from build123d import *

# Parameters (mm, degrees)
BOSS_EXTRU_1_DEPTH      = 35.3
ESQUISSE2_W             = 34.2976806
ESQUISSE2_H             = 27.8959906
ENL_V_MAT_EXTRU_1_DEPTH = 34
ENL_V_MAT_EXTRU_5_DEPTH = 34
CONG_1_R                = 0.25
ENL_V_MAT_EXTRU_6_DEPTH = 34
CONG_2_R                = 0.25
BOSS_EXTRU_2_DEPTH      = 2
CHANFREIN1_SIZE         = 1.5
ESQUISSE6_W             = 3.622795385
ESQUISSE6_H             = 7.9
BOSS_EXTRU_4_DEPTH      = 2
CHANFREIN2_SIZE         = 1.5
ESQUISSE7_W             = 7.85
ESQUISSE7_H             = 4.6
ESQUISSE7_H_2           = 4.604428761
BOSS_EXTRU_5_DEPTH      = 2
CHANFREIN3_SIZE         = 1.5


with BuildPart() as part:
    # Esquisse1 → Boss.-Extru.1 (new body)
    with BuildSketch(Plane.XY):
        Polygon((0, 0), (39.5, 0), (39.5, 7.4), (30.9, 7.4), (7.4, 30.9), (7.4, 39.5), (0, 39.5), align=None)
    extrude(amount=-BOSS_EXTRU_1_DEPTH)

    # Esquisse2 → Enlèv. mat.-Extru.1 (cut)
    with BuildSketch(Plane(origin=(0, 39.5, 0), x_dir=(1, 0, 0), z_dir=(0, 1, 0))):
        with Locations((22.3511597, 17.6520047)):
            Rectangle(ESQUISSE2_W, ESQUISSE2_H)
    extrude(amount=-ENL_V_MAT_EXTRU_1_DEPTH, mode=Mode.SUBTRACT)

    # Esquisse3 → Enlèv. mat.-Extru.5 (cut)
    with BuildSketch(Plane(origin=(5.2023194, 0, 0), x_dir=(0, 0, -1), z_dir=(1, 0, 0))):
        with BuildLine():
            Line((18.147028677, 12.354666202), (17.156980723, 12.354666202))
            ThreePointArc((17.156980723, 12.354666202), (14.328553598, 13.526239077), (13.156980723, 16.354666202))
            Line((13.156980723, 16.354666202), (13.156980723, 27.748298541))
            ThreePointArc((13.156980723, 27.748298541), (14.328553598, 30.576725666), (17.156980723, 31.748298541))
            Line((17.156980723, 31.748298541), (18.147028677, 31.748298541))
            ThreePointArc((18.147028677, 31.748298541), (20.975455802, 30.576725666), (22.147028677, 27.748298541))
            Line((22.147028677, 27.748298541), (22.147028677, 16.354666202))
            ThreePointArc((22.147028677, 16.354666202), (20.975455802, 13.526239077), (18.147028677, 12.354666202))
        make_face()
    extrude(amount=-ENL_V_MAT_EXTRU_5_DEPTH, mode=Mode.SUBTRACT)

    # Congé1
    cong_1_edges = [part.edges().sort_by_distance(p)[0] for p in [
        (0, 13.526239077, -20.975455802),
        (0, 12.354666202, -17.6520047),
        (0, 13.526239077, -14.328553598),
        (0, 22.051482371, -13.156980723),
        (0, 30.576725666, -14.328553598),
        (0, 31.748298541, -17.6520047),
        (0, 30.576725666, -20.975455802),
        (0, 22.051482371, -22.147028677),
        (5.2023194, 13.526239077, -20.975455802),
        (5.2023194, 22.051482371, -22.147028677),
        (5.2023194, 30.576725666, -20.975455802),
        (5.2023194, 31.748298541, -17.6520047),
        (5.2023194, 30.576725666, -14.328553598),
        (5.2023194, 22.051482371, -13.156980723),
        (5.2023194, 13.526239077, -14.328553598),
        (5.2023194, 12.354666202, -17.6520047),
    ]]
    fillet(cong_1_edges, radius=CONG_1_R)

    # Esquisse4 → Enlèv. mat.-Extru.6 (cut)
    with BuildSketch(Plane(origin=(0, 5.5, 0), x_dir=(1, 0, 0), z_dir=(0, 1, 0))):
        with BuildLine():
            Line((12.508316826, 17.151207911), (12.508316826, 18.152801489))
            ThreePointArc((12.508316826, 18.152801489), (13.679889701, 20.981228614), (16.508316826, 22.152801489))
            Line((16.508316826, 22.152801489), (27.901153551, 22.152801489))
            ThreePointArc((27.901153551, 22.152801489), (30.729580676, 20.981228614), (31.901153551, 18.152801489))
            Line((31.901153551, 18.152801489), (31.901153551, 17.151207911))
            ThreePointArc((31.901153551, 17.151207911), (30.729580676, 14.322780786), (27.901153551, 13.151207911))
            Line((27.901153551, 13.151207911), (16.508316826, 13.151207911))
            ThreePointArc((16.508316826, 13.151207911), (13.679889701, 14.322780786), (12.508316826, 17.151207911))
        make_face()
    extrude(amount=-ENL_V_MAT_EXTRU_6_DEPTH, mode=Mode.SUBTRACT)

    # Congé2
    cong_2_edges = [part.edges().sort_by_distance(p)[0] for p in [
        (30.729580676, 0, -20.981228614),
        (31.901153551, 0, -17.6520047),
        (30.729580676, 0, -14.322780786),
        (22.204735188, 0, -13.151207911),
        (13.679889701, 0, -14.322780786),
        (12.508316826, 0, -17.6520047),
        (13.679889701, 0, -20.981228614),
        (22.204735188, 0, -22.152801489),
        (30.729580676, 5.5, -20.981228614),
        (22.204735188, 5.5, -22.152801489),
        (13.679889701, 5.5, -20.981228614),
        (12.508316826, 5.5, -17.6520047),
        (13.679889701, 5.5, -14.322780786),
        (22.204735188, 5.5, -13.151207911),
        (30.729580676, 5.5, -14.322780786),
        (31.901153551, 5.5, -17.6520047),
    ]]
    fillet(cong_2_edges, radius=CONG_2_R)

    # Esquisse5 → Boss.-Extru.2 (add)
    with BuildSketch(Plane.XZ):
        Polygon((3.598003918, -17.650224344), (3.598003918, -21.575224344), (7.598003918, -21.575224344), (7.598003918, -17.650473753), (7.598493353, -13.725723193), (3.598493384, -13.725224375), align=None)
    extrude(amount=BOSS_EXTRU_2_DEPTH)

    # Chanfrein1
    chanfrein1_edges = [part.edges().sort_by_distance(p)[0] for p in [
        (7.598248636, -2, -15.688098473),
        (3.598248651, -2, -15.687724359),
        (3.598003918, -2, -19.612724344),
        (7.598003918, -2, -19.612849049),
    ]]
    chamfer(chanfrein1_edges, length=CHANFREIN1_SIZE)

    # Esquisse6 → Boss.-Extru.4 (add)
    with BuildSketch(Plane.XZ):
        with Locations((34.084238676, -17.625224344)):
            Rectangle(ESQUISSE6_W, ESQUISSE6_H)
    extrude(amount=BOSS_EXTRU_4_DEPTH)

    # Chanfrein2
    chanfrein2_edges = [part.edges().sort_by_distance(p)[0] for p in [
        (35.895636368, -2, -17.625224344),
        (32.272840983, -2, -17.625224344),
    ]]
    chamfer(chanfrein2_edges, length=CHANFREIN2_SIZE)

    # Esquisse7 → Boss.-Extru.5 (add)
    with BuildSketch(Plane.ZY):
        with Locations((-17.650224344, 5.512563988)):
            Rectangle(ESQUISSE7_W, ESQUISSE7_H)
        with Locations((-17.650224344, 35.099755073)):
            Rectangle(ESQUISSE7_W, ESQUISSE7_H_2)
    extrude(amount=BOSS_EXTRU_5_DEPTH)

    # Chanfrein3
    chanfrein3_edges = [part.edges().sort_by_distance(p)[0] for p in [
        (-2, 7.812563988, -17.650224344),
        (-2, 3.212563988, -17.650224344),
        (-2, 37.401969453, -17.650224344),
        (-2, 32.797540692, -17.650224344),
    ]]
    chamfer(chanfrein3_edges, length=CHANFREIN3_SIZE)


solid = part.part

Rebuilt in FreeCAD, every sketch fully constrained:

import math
import FreeCAD as App
import Part
import Sketcher

V = App.Vector
Q = App.Units.Quantity


def edges_at(feature, points):
    """Names of the edges that pass closest to the given points."""
    edges = feature.Shape.Edges
    near = lambda p: min(range(len(edges)), key=lambda i: edges[i].distToShape(Part.Vertex(*p))[0])
    return sorted({f"Edge{near(p) + 1}" for p in points})


def add_polygon(sketch, points):
    """Adds a closed chain of lines whose ends are joined by coincident constraints."""
    first, n = sketch.GeometryCount, len(points)
    for a, b in zip(points, points[1:] + points[:1]):
        sketch.addGeometry(Part.LineSegment(App.Vector(*a, 0), App.Vector(*b, 0)), False)
    for i in range(n):
        sketch.addConstraint(Sketcher.Constraint("Coincident", first + i, 2, first + (i + 1) % n, 1))

doc = App.newDocument("Part")
params = doc.addObject("Spreadsheet::Sheet", "Params")
for row, (alias, value) in enumerate([
    ("sketch1_width", "39.5 mm"),
    ("sketch1_width2", "8.6 mm"),
    ("sketch1_width3", "7.4 mm"),
    ("pad1_length", "35.3 mm"),
    ("pocket1_length", "34 mm"),
    ("sketch3_radius", "4 mm"),
    ("pocket2_length", "34 mm"),
    ("fillet_radius", "0.25 mm"),
    ("sketch4_radius", "4 mm"),
    ("pocket3_length", "34 mm"),
    ("fillet2_radius", "0.25 mm"),
    ("sketch5_width", "4 mm"),
    ("pad2_length", "2 mm"),
    ("chamfer_size", "1.5 mm"),
    ("sketch6_height", "7.9 mm"),
    ("pad3_length", "2 mm"),
    ("chamfer2_size", "1.5 mm"),
    ("sketch7_width", "4.6 mm"),
    ("sketch7_height", "7.85 mm"),
    ("pad4_length", "2 mm"),
    ("chamfer3_size", "1.5 mm"),
], start=1):
    params.set(f"A{row}", alias)
    params.set(f"B{row}", "=" + value)
    params.setAlias(f"B{row}", alias)

body = doc.addObject("PartDesign::Body", "Body")

# Sketch on XY plane
sketch1 = body.newObject("Sketcher::SketchObject", "Sketch")
sketch1.AttachmentSupport = (doc.getObject("XY_Plane"), [""])
sketch1.MapMode = "FlatFace"
add_polygon(sketch1, [(0, 0), (40, 0), (40, 7), (31, 7), (7, 31), (7, 40), (0, 40)])  # lines 0-6
sketch1.addConstraint([
    Sketcher.Constraint("Horizontal", 0),
    Sketcher.Constraint("Vertical", 1),
    Sketcher.Constraint("Horizontal", 2),
    Sketcher.Constraint("Vertical", 4),
    Sketcher.Constraint("Horizontal", 5),
    Sketcher.Constraint("Vertical", 6),
    Sketcher.Constraint("Coincident", 6, 2, -1, 1),
    Sketcher.Constraint("Equal", 5, 1),
    Sketcher.Constraint("Equal", 2, 4),
    Sketcher.Constraint("Equal", 0, 6),
    Sketcher.Constraint("DistanceX", 0, 1, 0, 2, Q("39.5 mm")),
    Sketcher.Constraint("DistanceX", 2, 2, 2, 1, Q("8.6 mm")),
    Sketcher.Constraint("DistanceX", 5, 2, 5, 1, Q("7.4 mm")),
])
sketch1.setExpression("Constraints[17]", "Params.sketch1_width")
sketch1.setExpression("Constraints[18]", "Params.sketch1_width2")
sketch1.setExpression("Constraints[19]", "Params.sketch1_width3")
pad1 = body.newObject("PartDesign::Pad", "Pad")
pad1.Profile = sketch1
pad1.setExpression("Length", "Params.pad1_length")
pad1.Reversed = True

# Sketch on XZ plane
sketch2 = body.newObject("Sketcher::SketchObject", "Sketch001")
sketch2.AttachmentSupport = (doc.getObject("XZ_Plane"), [""])
sketch2.MapMode = "FlatFace"
sketch2.AttachmentOffset = App.Placement(V(0, 0, -39.5), App.Rotation())
add_polygon(sketch2, [(5, -32), (5, -4), (40, -4), (40, -32)])  # lines 0-3
sketch2.addConstraint([
    Sketcher.Constraint("Vertical", 0),
    Sketcher.Constraint("Horizontal", 1),
    Sketcher.Constraint("Vertical", 2),
    Sketcher.Constraint("Horizontal", 3),
    Sketcher.Constraint("DistanceX", -1, 1, 1, 2, Q("39.5 mm")),
    Sketcher.Constraint("DistanceY", 2, 2, -1, 1, Q("31.6 mm")),
    Sketcher.Constraint("DistanceX", 1, 1, 1, 2, Q("34.297681 mm")),
    Sketcher.Constraint("DistanceY", 0, 1, 0, 2, Q("27.895991 mm")),
])
pocket1 = body.newObject("PartDesign::Pocket", "Pocket")
pocket1.Profile = sketch2
pocket1.setExpression("Length", "Params.pocket1_length")
pocket1.Reversed = True

# Sketch on YZ plane
sketch3 = body.newObject("Sketcher::SketchObject", "Sketch002")
sketch3.AttachmentSupport = (doc.getObject("YZ_Plane"), [""])
sketch3.MapMode = "FlatFace"
sketch3.AttachmentOffset = App.Placement(V(0, 0, 5.202319), App.Rotation())
sketch3.addGeometry([
    Part.LineSegment(V(12.4, -17.2, 0), V(12.4, -18.1, 0)),  # 0
    Part.ArcOfCircle(Part.Circle(V(16.4, -18.1, 0), V(0, 0, 1), 4), math.radians(180), math.radians(270)),  # 1
    Part.LineSegment(V(16.4, -22.1, 0), V(27.7, -22.1, 0)),  # 2
    Part.ArcOfCircle(Part.Circle(V(27.7, -18.1, 0), V(0, 0, 1), 4), math.radians(-90), math.radians(0)),  # 3
    Part.LineSegment(V(31.7, -18.1, 0), V(31.7, -17.2, 0)),  # 4
    Part.ArcOfCircle(Part.Circle(V(27.7, -17.2, 0), V(0, 0, 1), 4), math.radians(0), math.radians(90)),  # 5
    Part.LineSegment(V(27.7, -13.2, 0), V(16.4, -13.2, 0)),  # 6
    Part.ArcOfCircle(Part.Circle(V(16.4, -17.2, 0), V(0, 0, 1), 4), math.radians(90), math.radians(180)),  # 7
], False)
sketch3.addConstraint([
    Sketcher.Constraint("Tangent", 0, 2, 1, 1),
    Sketcher.Constraint("Tangent", 1, 2, 2, 1),
    Sketcher.Constraint("Tangent", 2, 2, 3, 1),
    Sketcher.Constraint("Tangent", 3, 2, 4, 1),
    Sketcher.Constraint("Tangent", 4, 2, 5, 1),
    Sketcher.Constraint("Tangent", 5, 2, 6, 1),
    Sketcher.Constraint("Tangent", 6, 2, 7, 1),
    Sketcher.Constraint("Tangent", 7, 2, 0, 1),
    Sketcher.Constraint("Vertical", 0),
    Sketcher.Constraint("Horizontal", 2),
    Sketcher.Constraint("Vertical", 4),
    Sketcher.Constraint("Horizontal", 6),
    Sketcher.Constraint("Equal", 1, 3),
    Sketcher.Constraint("Equal", 3, 5),
    Sketcher.Constraint("Equal", 5, 7),
    Sketcher.Constraint("Radius", 1, Q("4 mm")),
    Sketcher.Constraint("DistanceX", -1, 1, 3, 3, Q("27.748299 mm")),
    Sketcher.Constraint("DistanceX", 2, 1, 2, 2, Q("11.393632 mm")),
    Sketcher.Constraint("DistanceY", 0, 2, 0, 1, Q("0.990048 mm")),
    Sketcher.Constraint("DistanceY", 1, 3, -1, 1, Q("18.147029 mm")),
])
sketch3.setExpression("Constraints[15]", "Params.sketch3_radius")
pocket2 = body.newObject("PartDesign::Pocket", "Pocket001")
pocket2.Profile = sketch3
pocket2.setExpression("Length", "Params.pocket2_length")
doc.recompute()

fillet = body.newObject("PartDesign::Fillet", "Fillet")
fillet.Base = (pocket2, edges_at(pocket2, [
    (0, 13.526, -20.975),
    (0, 12.355, -17.652),
    (0, 13.526, -14.329),
    (0, 22.051, -13.157),
    (0, 30.577, -14.329),
    (0, 31.748, -17.652),
    (0, 30.577, -20.975),
    (0, 22.051, -22.147),
    (5.202, 13.526, -20.975),
    (5.202, 22.051, -22.147),
    (5.202, 30.577, -20.975),
    (5.202, 31.748, -17.652),
    (5.202, 30.577, -14.329),
    (5.202, 22.051, -13.157),
    (5.202, 13.526, -14.329),
    (5.202, 12.355, -17.652),
]))
fillet.setExpression("Radius", "Params.fillet_radius")

# Sketch on XZ plane
sketch4 = body.newObject("Sketcher::SketchObject", "Sketch003")
sketch4.AttachmentSupport = (doc.getObject("XZ_Plane"), [""])
sketch4.MapMode = "FlatFace"
sketch4.AttachmentOffset = App.Placement(V(0, 0, -5.5), App.Rotation())
sketch4.addGeometry([
    Part.LineSegment(V(12.5, -18.2, 0), V(12.5, -17.2, 0)),  # 0
    Part.ArcOfCircle(Part.Circle(V(16.5, -17.2, 0), V(0, 0, 1), 4), math.radians(90), math.radians(180)),  # 1
    Part.LineSegment(V(16.5, -13.2, 0), V(27.9, -13.2, 0)),  # 2
    Part.ArcOfCircle(Part.Circle(V(27.9, -17.2, 0), V(0, 0, 1), 4), math.radians(0), math.radians(90)),  # 3
    Part.LineSegment(V(31.9, -17.2, 0), V(31.9, -18.2, 0)),  # 4
    Part.ArcOfCircle(Part.Circle(V(27.9, -18.2, 0), V(0, 0, 1), 4), math.radians(-90), math.radians(0)),  # 5
    Part.LineSegment(V(27.9, -22.2, 0), V(16.5, -22.2, 0)),  # 6
    Part.ArcOfCircle(Part.Circle(V(16.5, -18.2, 0), V(0, 0, 1), 4), math.radians(180), math.radians(270)),  # 7
], False)
sketch4.addConstraint([
    Sketcher.Constraint("Tangent", 0, 2, 1, 2),
    Sketcher.Constraint("Tangent", 1, 1, 2, 1),
    Sketcher.Constraint("Tangent", 2, 2, 3, 2),
    Sketcher.Constraint("Tangent", 3, 1, 4, 1),
    Sketcher.Constraint("Tangent", 4, 2, 5, 2),
    Sketcher.Constraint("Tangent", 5, 1, 6, 1),
    Sketcher.Constraint("Tangent", 6, 2, 7, 2),
    Sketcher.Constraint("Tangent", 7, 1, 0, 1),
    Sketcher.Constraint("Vertical", 0),
    Sketcher.Constraint("Horizontal", 2),
    Sketcher.Constraint("Vertical", 4),
    Sketcher.Constraint("Horizontal", 6),
    Sketcher.Constraint("Equal", 1, 3),
    Sketcher.Constraint("Equal", 3, 5),
    Sketcher.Constraint("Equal", 5, 7),
    Sketcher.Constraint("Radius", 1, Q("4 mm")),
    Sketcher.Constraint("DistanceY", 5, 3, -1, 1, Q("18.152801 mm")),
    Sketcher.Constraint("DistanceX", 2, 1, 2, 2, Q("11.392837 mm")),
    Sketcher.Constraint("DistanceY", 0, 1, 0, 2, Q("1.001594 mm")),
    Sketcher.Constraint("DistanceX", -1, 1, 1, 3, Q("16.508317 mm")),
])
sketch4.setExpression("Constraints[15]", "Params.sketch4_radius")
pocket3 = body.newObject("PartDesign::Pocket", "Pocket002")
pocket3.Profile = sketch4
pocket3.setExpression("Length", "Params.pocket3_length")
pocket3.Reversed = True
doc.recompute()

fillet2 = body.newObject("PartDesign::Fillet", "Fillet001")
fillet2.Base = (pocket3, edges_at(pocket3, [
    (30.73, 0, -20.981),
    (31.901, 0, -17.652),
    (30.73, 0, -14.323),
    (22.205, 0, -13.151),
    (13.68, 0, -14.323),
    (12.508, 0, -17.652),
    (13.68, 0, -20.981),
    (22.205, 0, -22.153),
    (30.73, 5.5, -20.981),
    (22.205, 5.5, -22.153),
    (13.68, 5.5, -20.981),
    (12.508, 5.5, -17.652),
    (13.68, 5.5, -14.323),
    (22.205, 5.5, -13.151),
    (30.73, 5.5, -14.323),
    (31.901, 5.5, -17.652),
]))
fillet2.setExpression("Radius", "Params.fillet2_radius")

# Sketch on XZ plane
sketch5 = body.newObject("Sketcher::SketchObject", "Sketch004")
sketch5.AttachmentSupport = (doc.getObject("XZ_Plane"), [""])
sketch5.MapMode = "FlatFace"
add_polygon(sketch5, [(3.6, -17.7), (3.6, -21.6), (7.6, -21.6), (7.6, -17.7), (7.6, -13.7), (3.6, -13.7)])  # lines 0-5
sketch5.addConstraint([
    Sketcher.Constraint("Vertical", 0),
    Sketcher.Constraint("Horizontal", 1),
    Sketcher.Constraint("Vertical", 2),
    Sketcher.Constraint("Perpendicular", 3, 4),
    Sketcher.Constraint("Perpendicular", 4, 5),
    Sketcher.Constraint("DistanceX", 1, 1, 1, 2, Q("4 mm")),
    Sketcher.Constraint("DistanceY", 0, 2, 0, 1, Q("3.925 mm")),
    Sketcher.Constraint("DistanceY", 0, 2, 4, 2, Q("7.85 mm")),
    Sketcher.Constraint("DistanceY", 2, 1, 2, 2, Q("3.924751 mm")),
    Sketcher.Constraint("DistanceY", 1, 2, 3, 2, Q("7.849501 mm")),
    Sketcher.Constraint("DistanceX", -1, 1, 0, 2, Q("3.598004 mm")),
    Sketcher.Constraint("DistanceY", 0, 2, -1, 1, Q("21.575224 mm")),
])
sketch5.setExpression("Constraints[11]", "Params.sketch5_width")
pad2 = body.newObject("PartDesign::Pad", "Pad001")
pad2.Profile = sketch5
pad2.setExpression("Length", "Params.pad2_length")
doc.recompute()

chamfer = body.newObject("PartDesign::Chamfer", "Chamfer")
chamfer.Base = (pad2, edges_at(pad2, [
    (7.598, -2, -15.688),
    (3.598, -2, -15.688),
    (3.598, -2, -19.613),
    (7.598, -2, -19.613),
]))
chamfer.setExpression("Size", "Params.chamfer_size")

# Sketch on XZ plane
sketch6 = body.newObject("Sketcher::SketchObject", "Sketch005")
sketch6.AttachmentSupport = (doc.getObject("XZ_Plane"), [""])
sketch6.MapMode = "FlatFace"
add_polygon(sketch6, [(32.3, -13.7), (32.3, -21.6), (35.9, -21.6), (35.9, -13.7)])  # lines 0-3
sketch6.addConstraint([
    Sketcher.Constraint("Vertical", 0),
    Sketcher.Constraint("Horizontal", 1),
    Sketcher.Constraint("Vertical", 2),
    Sketcher.Constraint("Horizontal", 3),
    Sketcher.Constraint("DistanceY", 0, 2, 0, 1, Q("7.9 mm")),
    Sketcher.Constraint("DistanceX", 1, 1, 1, 2, Q("3.622795 mm")),
    Sketcher.Constraint("DistanceX", -1, 1, 0, 2, Q("32.272841 mm")),
    Sketcher.Constraint("DistanceY", 0, 2, -1, 1, Q("21.575224 mm")),
])
sketch6.setExpression("Constraints[8]", "Params.sketch6_height")
pad3 = body.newObject("PartDesign::Pad", "Pad002")
pad3.Profile = sketch6
pad3.setExpression("Length", "Params.pad3_length")
doc.recompute()

chamfer2 = body.newObject("PartDesign::Chamfer", "Chamfer001")
chamfer2.Base = (pad3, edges_at(pad3, [(35.896, -2, -17.625), (32.273, -2, -17.625)]))
chamfer2.setExpression("Size", "Params.chamfer2_size")

# Sketch on YZ plane
sketch7 = body.newObject("Sketcher::SketchObject", "Sketch006")
sketch7.AttachmentSupport = (doc.getObject("YZ_Plane"), [""])
sketch7.MapMode = "FlatFace"
add_polygon(sketch7, [(7.8, -21.6), (3.2, -21.6), (3.2, -13.7), (7.8, -13.7)])  # lines 0-3
add_polygon(sketch7, [(37.4, -21.6), (32.8, -21.6), (32.8, -13.7), (37.4, -13.7)])  # lines 4-7
sketch7.addConstraint([
    Sketcher.Constraint("Horizontal", 0),
    Sketcher.Constraint("Vertical", 1),
    Sketcher.Constraint("Horizontal", 2),
    Sketcher.Constraint("Vertical", 3),
    Sketcher.Constraint("Horizontal", 4),
    Sketcher.Constraint("Vertical", 5),
    Sketcher.Constraint("Horizontal", 6),
    Sketcher.Constraint("Vertical", 7),
    Sketcher.Constraint("Horizontal", 3, 2, 4, 2),
    Sketcher.Constraint("Horizontal", 2, 2, 5, 2),
    Sketcher.Constraint("DistanceX", 0, 2, 0, 1, Q("4.6 mm")),
    Sketcher.Constraint("DistanceY", 1, 1, 1, 2, Q("7.85 mm")),
    Sketcher.Constraint("DistanceX", 4, 2, 4, 1, Q("4.604429 mm")),
    Sketcher.Constraint("DistanceX", -1, 1, 4, 2, Q("32.797541 mm")),
    Sketcher.Constraint("DistanceX", -1, 1, 0, 2, Q("3.212564 mm")),
    Sketcher.Constraint("DistanceY", 0, 2, -1, 1, Q("21.575224 mm")),
])
sketch7.setExpression("Constraints[18]", "Params.sketch7_width")
sketch7.setExpression("Constraints[19]", "Params.sketch7_height")
pad4 = body.newObject("PartDesign::Pad", "Pad003")
pad4.Profile = sketch7
pad4.setExpression("Length", "Params.pad4_length")
pad4.Reversed = True
doc.recompute()

chamfer3 = body.newObject("PartDesign::Chamfer", "Chamfer002")
chamfer3.Base = (pad4, edges_at(pad4, [
    (-2, 7.813, -17.65),
    (-2, 3.213, -17.65),
    (-2, 37.402, -17.65),
    (-2, 32.798, -17.65),
]))
chamfer3.setExpression("Size", "Params.chamfer3_size")

doc.recompute()
